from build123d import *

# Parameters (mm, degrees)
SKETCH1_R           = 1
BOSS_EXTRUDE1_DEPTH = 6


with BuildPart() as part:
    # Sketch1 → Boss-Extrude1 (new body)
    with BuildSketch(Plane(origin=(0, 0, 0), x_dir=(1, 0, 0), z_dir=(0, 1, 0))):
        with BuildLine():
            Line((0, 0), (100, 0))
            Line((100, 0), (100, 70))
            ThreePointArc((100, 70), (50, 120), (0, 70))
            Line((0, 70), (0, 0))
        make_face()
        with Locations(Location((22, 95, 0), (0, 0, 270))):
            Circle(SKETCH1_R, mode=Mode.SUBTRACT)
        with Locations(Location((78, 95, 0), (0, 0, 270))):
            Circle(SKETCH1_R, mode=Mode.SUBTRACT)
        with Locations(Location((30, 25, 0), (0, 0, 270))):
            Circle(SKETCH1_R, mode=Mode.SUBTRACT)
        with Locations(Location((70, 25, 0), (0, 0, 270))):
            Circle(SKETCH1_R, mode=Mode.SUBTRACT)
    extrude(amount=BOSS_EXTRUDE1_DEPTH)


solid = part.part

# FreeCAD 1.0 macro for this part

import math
import FreeCAD as App
import Part
import Sketcher

V = App.Vector
Q = App.Units.Quantity

doc = App.newDocument("Part")
body = doc.addObject("PartDesign::Body", "Body")

# Sketch on XZ plane
sketch1 = doc.addObject("Sketcher::SketchObject", "Sketch")
body.addObject(sketch1)
sketch1.AttachmentSupport = (doc.XZ_Plane, [""])
sketch1.MapMode = "FlatFace"
sketch1.addGeometry(Part.LineSegment(V(0, 0, 0), V(100, 0, 0)), False)
sketch1.addGeometry(Part.LineSegment(V(100, 0, 0), V(100, -70, 0)), False)
sketch1.addGeometry(Part.ArcOfCircle(Part.Circle(V(50, -70, 0), V(0, 0, 1), 50), math.radians(180), math.radians(360)), False)
sketch1.addGeometry(Part.LineSegment(V(0, -70, 0), V(0, 0, 0)), False)
sketch1.addGeometry(Part.Circle(V(30, -25, 0), V(0, 0, 1), 1), False)
sketch1.addGeometry(Part.Circle(V(70, -25, 0), V(0, 0, 1), 1), False)
sketch1.addGeometry(Part.Circle(V(22, -95, 0), V(0, 0, 1), 1), False)
sketch1.addGeometry(Part.Circle(V(78, -95, 0), V(0, 0, 1), 1), False)
sketch1.addConstraint(Sketcher.Constraint("Coincident", 0, 2, 1, 1))
sketch1.addConstraint(Sketcher.Constraint("Tangent", 1, 2, 2, 2))
sketch1.addConstraint(Sketcher.Constraint("Tangent", 2, 1, 3, 1))
sketch1.addConstraint(Sketcher.Constraint("Coincident", 3, 2, 0, 1))
sketch1.addConstraint(Sketcher.Constraint("Horizontal", 0))
sketch1.addConstraint(Sketcher.Constraint("Vertical", 1))
sketch1.addConstraint(Sketcher.Constraint("Vertical", 3))
sketch1.addConstraint(Sketcher.Constraint("Coincident", 3, 2, -1, 1))
sketch1.addConstraint(Sketcher.Constraint("Equal", 4, 5))
sketch1.addConstraint(Sketcher.Constraint("Equal", 5, 6))
sketch1.addConstraint(Sketcher.Constraint("Equal", 6, 7))
sketch1.addConstraint(Sketcher.Constraint("Horizontal", 4, 3, 5, 3))
sketch1.addConstraint(Sketcher.Constraint("Horizontal", 6, 3, 7, 3))
sketch1.addConstraint(Sketcher.Constraint("Diameter", 4, Q("2 mm")))
sketch1.addConstraint(Sketcher.Constraint("Radius", 2, Q("50 mm")))
sketch1.addConstraint(Sketcher.Constraint("DistanceY", 1, 2, 1, 1, Q("70 mm")))
sketch1.addConstraint(Sketcher.Constraint("DistanceX", -1, 1, 4, 3, Q("30 mm")))
sketch1.addConstraint(Sketcher.Constraint("DistanceY", 4, 3, -1, 1, Q("25 mm")))
sketch1.addConstraint(Sketcher.Constraint("DistanceX", -1, 1, 5, 3, Q("70 mm")))
sketch1.addConstraint(Sketcher.Constraint("DistanceX", -1, 1, 6, 3, Q("22 mm")))
sketch1.addConstraint(Sketcher.Constraint("DistanceY", 6, 3, -1, 1, Q("95 mm")))
sketch1.addConstraint(Sketcher.Constraint("DistanceX", -1, 1, 7, 3, Q("78 mm")))
pad1 = doc.addObject("PartDesign::Pad", "Pad")
body.addObject(pad1)
pad1.Profile = sketch1
pad1.Length = 6
pad1.Reversed = True

doc.recompute()
